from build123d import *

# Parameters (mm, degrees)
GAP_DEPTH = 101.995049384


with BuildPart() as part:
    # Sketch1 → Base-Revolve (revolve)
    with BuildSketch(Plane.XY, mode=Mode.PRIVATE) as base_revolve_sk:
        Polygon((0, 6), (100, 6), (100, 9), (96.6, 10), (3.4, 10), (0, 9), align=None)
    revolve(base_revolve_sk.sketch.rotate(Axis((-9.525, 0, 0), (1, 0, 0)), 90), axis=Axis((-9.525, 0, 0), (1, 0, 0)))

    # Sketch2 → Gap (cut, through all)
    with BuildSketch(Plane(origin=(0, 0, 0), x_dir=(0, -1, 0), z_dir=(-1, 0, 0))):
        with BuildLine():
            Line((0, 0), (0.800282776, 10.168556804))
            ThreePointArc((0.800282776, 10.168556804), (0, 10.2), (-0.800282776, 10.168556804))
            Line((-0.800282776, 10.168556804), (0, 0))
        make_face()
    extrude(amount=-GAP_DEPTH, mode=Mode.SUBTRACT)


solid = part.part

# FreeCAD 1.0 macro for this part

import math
import FreeCAD as App
import Part
import Sketcher
Q = App.Units.Quantity

doc = App.newDocument("Part")
params = doc.addObject("Spreadsheet::Sheet", "Params")
for row, (alias, value) in enumerate([
    ("sketch1_width", "100 mm"),
    ("sketch1_height", "3 mm"),
    ("sketch1_width2", "93.2 mm"),
    ("revolution_angle", "360 deg"),
    ("sketch2_radius", "10.2 mm"),
], start=1):
    params.set(f"A{row}", alias)
    params.set(f"B{row}", "=" + value)
    params.setAlias(f"B{row}", alias)

body = doc.addObject("PartDesign::Body", "Body")

# Sketch on XY plane
sketch1 = body.newObject("Sketcher::SketchObject", "Sketch")
sketch1.AttachmentSupport = (doc.getObject("XY_Plane"), [""])
sketch1.MapMode = "FlatFace"
sketch1.addGeometry(Part.LineSegment(App.Vector(0, 6, 0), App.Vector(100, 6, 0)), False)
sketch1.addGeometry(Part.LineSegment(App.Vector(100, 6, 0), App.Vector(100, 9, 0)), False)
sketch1.addGeometry(Part.LineSegment(App.Vector(100, 9, 0), App.Vector(96.6, 10, 0)), False)
sketch1.addGeometry(Part.LineSegment(App.Vector(96.6, 10, 0), App.Vector(3.4, 10, 0)), False)
sketch1.addGeometry(Part.LineSegment(App.Vector(3.4, 10, 0), App.Vector(0, 9, 0)), False)
sketch1.addGeometry(Part.LineSegment(App.Vector(0, 9, 0), App.Vector(0, 6, 0)), False)
sketch1.addConstraint(Sketcher.Constraint("Coincident", 0, 2, 1, 1))
sketch1.addConstraint(Sketcher.Constraint("Coincident", 1, 2, 2, 1))
sketch1.addConstraint(Sketcher.Constraint("Coincident", 2, 2, 3, 1))
sketch1.addConstraint(Sketcher.Constraint("Coincident", 3, 2, 4, 1))
sketch1.addConstraint(Sketcher.Constraint("Coincident", 4, 2, 5, 1))
sketch1.addConstraint(Sketcher.Constraint("Coincident", 5, 2, 0, 1))
sketch1.addConstraint(Sketcher.Constraint("Horizontal", 0))
sketch1.addConstraint(Sketcher.Constraint("Vertical", 1))
sketch1.addConstraint(Sketcher.Constraint("Horizontal", 3))
sketch1.addConstraint(Sketcher.Constraint("Vertical", 5))
sketch1.addConstraint(Sketcher.Constraint("PointOnObject", 4, 2, -2))
sketch1.addConstraint(Sketcher.Constraint("Horizontal", 1, 2, 4, 2))
sketch1.addConstraint(Sketcher.Constraint("Equal", 2, 4))
sketch1.addConstraint(Sketcher.Constraint("DistanceX", 0, 1, 0, 2, Q("100 mm")))
sketch1.addConstraint(Sketcher.Constraint("DistanceY", 1, 1, 1, 2, Q("3 mm")))
sketch1.addConstraint(Sketcher.Constraint("DistanceX", 3, 2, 3, 1, Q("93.2 mm")))
sketch1.addConstraint(Sketcher.Constraint("DistanceY", -1, 1, 0, 2, Q("6 mm")))
sketch1.addConstraint(Sketcher.Constraint("DistanceY", -1, 1, 2, 2, Q("10 mm")))
sketch1.setExpression("Constraints[13]", "Params.sketch1_width")
sketch1.setExpression("Constraints[14]", "Params.sketch1_height")
sketch1.setExpression("Constraints[15]", "Params.sketch1_width2")
revolution = body.newObject("PartDesign::Revolution", "Revolution")
revolution.Profile = sketch1
revolution.ReferenceAxis = (sketch1, ["H_Axis"])
revolution.setExpression("Angle", "Params.revolution_angle")

# Sketch on YZ plane
sketch2 = body.newObject("Sketcher::SketchObject", "Sketch001")
sketch2.AttachmentSupport = (doc.getObject("YZ_Plane"), [""])
sketch2.MapMode = "FlatFace"
sketch2.addGeometry(Part.LineSegment(App.Vector(0, 0, 0), App.Vector(-0.8, 10.2, 0)), False)
sketch2.addGeometry(Part.ArcOfCircle(Part.Circle(App.Vector(0, 0, 0), App.Vector(0, 0, 1), 10.2), math.radians(85.5), math.radians(94.5)), False)
sketch2.addGeometry(Part.LineSegment(App.Vector(0.8, 10.2, 0), App.Vector(0, 0, 0)), False)
sketch2.addConstraint(Sketcher.Constraint("Coincident", 0, 2, 1, 2))
sketch2.addConstraint(Sketcher.Constraint("Coincident", 1, 1, 2, 1))
sketch2.addConstraint(Sketcher.Constraint("Coincident", 2, 2, 0, 1))
sketch2.addConstraint(Sketcher.Constraint("Coincident", 1, 3, -1, 1))
sketch2.addConstraint(Sketcher.Constraint("Coincident", 2, 2, -1, 1))
sketch2.addConstraint(Sketcher.Constraint("Horizontal", 0, 2, 1, 1))
sketch2.addConstraint(Sketcher.Constraint("Radius", 1, Q("10.2 mm")))
sketch2.addConstraint(Sketcher.Constraint("Angle", 0, Q("94.5 deg")))
sketch2.setExpression("Constraints[6]", "Params.sketch2_radius")
pocket1 = body.newObject("PartDesign::Pocket", "Pocket")
pocket1.Profile = sketch2
pocket1.Type = "ThroughAll"
pocket1.Reversed = True

doc.recompute()
